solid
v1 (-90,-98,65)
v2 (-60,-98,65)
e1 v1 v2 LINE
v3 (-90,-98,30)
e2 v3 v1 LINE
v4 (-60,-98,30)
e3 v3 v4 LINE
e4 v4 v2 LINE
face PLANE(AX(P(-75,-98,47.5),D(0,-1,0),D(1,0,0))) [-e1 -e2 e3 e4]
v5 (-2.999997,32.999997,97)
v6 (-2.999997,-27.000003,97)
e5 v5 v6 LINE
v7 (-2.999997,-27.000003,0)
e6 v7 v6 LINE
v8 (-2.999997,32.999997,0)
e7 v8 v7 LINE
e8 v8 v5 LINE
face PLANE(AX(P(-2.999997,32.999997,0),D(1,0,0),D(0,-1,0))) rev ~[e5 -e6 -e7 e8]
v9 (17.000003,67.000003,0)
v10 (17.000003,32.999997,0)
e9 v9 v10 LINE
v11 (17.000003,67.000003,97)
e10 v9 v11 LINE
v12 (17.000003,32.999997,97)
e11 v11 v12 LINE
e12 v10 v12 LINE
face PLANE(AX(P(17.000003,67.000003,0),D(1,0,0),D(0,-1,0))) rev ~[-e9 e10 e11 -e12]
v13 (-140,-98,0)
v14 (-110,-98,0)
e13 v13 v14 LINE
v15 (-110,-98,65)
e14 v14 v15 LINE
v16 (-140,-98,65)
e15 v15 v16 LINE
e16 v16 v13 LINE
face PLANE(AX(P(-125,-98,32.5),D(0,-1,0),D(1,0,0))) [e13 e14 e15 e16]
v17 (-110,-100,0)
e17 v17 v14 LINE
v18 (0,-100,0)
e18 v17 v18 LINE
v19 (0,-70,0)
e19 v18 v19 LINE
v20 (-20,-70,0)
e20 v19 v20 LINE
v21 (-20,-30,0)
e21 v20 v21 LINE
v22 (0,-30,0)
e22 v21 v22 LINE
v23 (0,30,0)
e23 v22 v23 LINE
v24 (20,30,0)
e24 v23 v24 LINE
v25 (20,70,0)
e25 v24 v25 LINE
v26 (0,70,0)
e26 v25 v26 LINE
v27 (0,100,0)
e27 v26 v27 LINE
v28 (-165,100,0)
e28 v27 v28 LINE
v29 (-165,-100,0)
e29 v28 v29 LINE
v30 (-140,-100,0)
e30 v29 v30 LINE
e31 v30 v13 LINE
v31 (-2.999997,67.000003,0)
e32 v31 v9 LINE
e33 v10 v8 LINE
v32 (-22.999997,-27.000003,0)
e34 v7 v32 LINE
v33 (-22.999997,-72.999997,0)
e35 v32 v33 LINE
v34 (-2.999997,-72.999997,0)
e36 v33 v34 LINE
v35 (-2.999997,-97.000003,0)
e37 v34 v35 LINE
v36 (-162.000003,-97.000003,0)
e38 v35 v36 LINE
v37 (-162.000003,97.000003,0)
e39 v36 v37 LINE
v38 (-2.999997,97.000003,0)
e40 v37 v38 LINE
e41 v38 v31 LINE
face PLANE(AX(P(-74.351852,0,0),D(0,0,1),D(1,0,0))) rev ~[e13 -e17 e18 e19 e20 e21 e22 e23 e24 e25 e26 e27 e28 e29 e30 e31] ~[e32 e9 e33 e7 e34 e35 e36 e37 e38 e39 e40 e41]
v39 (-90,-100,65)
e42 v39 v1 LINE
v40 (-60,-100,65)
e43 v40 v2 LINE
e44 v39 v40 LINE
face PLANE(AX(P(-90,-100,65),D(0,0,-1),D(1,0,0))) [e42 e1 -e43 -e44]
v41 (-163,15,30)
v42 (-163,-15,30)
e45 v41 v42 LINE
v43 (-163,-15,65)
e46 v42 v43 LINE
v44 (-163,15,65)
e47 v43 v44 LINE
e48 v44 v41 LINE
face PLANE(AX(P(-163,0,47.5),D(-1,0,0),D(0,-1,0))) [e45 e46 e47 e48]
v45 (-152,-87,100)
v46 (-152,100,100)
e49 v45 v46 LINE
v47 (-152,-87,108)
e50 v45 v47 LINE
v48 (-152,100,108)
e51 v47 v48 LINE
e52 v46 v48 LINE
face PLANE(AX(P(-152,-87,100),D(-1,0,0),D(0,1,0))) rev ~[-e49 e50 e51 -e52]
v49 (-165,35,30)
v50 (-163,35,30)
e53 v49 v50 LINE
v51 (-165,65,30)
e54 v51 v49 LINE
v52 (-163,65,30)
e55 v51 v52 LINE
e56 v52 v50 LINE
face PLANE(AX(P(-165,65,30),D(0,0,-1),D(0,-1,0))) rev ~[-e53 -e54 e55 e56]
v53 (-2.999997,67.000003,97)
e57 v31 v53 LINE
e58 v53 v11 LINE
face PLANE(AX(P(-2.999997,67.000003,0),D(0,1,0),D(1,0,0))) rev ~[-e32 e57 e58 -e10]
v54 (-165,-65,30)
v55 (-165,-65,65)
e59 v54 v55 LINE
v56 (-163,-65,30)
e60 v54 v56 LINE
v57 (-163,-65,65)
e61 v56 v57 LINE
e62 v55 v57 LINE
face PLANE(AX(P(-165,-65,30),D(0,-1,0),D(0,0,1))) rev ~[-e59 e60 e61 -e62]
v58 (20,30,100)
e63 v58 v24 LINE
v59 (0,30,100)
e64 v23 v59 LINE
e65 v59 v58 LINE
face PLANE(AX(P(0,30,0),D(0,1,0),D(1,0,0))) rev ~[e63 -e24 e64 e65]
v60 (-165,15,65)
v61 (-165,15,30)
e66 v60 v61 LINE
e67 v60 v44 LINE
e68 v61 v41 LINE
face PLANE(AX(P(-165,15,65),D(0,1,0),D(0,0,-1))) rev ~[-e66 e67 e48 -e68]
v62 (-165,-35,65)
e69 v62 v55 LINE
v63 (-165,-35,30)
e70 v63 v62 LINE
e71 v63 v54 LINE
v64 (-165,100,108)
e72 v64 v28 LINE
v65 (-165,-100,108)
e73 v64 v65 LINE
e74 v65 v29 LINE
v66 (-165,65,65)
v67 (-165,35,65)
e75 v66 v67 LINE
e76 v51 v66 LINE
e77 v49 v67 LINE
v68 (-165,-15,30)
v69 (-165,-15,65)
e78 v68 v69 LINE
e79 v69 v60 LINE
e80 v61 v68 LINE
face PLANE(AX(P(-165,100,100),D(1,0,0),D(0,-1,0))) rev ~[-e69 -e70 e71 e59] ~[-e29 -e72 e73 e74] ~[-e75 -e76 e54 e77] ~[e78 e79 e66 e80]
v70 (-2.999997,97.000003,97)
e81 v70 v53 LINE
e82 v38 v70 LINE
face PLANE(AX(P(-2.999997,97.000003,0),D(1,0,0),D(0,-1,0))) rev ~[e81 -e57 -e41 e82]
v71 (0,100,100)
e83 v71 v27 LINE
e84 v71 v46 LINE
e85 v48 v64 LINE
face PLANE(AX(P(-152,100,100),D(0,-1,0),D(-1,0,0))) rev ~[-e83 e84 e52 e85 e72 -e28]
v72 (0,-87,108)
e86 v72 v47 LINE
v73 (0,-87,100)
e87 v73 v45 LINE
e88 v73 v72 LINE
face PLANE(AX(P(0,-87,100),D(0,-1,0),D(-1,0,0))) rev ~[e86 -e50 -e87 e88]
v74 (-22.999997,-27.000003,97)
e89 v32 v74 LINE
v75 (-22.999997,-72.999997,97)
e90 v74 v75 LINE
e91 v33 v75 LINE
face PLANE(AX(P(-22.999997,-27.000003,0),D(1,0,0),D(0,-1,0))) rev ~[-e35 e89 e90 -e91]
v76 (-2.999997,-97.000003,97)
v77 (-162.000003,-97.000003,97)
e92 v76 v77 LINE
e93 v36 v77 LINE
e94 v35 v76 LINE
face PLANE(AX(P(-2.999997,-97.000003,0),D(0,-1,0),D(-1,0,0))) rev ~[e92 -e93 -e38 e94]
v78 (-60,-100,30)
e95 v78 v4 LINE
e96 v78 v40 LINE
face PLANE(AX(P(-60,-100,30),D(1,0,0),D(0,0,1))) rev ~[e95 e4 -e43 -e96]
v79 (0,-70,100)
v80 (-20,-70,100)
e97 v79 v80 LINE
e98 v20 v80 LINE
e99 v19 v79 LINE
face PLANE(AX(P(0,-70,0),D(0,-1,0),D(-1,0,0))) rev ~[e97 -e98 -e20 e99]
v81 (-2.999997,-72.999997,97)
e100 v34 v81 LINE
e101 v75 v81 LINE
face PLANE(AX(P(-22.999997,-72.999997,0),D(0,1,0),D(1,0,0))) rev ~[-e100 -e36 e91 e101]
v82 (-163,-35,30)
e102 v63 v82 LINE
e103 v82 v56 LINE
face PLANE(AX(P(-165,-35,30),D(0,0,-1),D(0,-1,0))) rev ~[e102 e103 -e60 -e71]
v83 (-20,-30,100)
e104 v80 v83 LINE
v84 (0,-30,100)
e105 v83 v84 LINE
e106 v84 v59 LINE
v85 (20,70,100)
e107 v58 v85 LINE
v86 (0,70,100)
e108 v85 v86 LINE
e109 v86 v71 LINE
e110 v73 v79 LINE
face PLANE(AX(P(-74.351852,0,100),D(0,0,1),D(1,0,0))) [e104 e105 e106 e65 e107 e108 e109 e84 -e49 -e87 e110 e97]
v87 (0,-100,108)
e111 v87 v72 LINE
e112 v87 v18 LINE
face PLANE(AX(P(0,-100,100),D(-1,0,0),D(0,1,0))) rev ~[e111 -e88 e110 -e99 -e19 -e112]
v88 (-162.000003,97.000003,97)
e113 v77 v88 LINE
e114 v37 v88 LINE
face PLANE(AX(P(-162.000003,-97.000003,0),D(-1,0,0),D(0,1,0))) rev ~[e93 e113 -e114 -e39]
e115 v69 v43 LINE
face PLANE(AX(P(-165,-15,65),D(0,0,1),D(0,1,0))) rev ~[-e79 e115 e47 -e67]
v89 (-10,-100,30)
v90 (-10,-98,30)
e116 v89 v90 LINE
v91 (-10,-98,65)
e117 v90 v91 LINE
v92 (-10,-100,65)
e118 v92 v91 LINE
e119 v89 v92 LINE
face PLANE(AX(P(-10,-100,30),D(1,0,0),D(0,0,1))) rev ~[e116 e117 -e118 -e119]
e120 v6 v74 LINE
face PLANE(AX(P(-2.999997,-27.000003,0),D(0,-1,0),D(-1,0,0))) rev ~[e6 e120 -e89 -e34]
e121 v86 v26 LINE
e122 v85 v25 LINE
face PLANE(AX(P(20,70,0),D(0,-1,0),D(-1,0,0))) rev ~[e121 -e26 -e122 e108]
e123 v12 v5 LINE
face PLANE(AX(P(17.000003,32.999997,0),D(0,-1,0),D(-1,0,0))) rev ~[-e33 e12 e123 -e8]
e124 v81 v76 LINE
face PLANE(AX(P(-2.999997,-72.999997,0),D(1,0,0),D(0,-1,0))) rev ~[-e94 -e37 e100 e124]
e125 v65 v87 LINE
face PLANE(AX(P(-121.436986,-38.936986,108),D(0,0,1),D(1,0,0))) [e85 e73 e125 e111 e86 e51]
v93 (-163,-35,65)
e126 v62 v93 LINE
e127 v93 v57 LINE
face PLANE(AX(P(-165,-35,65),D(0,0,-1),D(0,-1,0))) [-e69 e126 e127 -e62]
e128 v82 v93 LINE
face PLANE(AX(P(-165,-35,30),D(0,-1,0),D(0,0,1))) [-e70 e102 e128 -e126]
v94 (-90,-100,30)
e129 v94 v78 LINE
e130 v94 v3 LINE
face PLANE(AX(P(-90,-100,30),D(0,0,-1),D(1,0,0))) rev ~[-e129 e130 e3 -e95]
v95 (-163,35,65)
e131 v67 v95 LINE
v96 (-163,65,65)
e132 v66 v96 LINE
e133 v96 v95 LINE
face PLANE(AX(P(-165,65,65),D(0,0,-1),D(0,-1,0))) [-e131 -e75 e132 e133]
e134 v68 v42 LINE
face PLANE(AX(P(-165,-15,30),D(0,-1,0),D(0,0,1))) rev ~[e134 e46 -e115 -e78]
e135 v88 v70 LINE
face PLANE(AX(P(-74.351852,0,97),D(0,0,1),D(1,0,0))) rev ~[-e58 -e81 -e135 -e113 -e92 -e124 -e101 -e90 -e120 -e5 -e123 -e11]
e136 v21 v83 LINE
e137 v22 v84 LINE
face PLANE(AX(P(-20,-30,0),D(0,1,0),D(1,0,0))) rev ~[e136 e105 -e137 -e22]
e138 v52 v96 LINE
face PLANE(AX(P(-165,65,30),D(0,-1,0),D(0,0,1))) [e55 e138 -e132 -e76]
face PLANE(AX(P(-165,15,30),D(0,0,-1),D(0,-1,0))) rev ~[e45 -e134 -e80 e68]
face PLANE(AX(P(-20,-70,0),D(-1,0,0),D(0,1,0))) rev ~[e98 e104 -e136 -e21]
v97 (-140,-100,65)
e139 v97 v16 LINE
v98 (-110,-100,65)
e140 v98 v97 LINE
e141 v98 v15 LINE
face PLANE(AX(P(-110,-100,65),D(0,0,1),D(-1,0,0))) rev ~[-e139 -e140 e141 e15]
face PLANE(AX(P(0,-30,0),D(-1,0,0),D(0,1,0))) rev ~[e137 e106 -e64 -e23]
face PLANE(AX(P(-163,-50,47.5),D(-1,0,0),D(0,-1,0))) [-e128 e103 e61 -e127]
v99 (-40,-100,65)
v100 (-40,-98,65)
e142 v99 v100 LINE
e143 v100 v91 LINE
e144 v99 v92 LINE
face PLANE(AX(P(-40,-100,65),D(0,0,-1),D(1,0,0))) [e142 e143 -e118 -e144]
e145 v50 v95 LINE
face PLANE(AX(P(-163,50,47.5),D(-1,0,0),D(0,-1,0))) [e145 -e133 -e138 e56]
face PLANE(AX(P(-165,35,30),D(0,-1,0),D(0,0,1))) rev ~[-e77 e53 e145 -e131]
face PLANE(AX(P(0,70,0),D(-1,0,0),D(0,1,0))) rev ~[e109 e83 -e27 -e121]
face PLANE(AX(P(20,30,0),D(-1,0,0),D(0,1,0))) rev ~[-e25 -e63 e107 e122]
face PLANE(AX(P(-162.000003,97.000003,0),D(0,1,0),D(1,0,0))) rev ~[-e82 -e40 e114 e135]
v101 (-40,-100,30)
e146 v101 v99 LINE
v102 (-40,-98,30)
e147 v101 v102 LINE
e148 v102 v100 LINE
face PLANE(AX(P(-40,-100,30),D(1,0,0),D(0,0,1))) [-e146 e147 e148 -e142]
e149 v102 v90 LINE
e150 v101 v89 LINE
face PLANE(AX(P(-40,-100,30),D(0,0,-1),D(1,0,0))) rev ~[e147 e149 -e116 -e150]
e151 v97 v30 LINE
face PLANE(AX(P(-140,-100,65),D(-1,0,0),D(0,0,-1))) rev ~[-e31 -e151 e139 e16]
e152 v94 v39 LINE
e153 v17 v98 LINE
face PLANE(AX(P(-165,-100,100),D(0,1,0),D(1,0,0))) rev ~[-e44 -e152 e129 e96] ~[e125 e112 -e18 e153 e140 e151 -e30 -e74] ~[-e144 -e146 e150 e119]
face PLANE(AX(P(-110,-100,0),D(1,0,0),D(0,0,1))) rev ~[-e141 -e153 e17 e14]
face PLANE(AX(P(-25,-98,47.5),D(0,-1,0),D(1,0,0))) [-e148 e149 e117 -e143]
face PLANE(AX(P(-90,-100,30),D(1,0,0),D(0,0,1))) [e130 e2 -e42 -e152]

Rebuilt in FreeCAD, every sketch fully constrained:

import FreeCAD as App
import Part
import Sketcher

V = App.Vector
Q = App.Units.Quantity


def add_polygon(sketch, points):
    """Adds a closed chain of lines whose ends are joined by coincident constraints."""
    first, n = sketch.GeometryCount, len(points)
    for a, b in zip(points, points[1:] + points[:1]):
        sketch.addGeometry(Part.LineSegment(App.Vector(*a, 0), App.Vector(*b, 0)), False)
    for i in range(n):
        sketch.addConstraint(Sketcher.Constraint("Coincident", first + i, 2, first + (i + 1) % n, 1))

doc = App.newDocument("Part")
body = doc.addObject("PartDesign::Body", "Body")

sketch1 = body.newObject("Sketcher::SketchObject", "Sketch")
sketch1.AttachmentSupport = (doc.getObject("XY_Plane"), [""])
sketch1.MapMode = "FlatFace"
add_polygon(sketch1, [(-165, -100), (0, -100), (0, -70), (-20, -70), (-20, -30), (0, -30), (0, 30), (20, 30), (20, 70), (0, 70), (0, 100), (-165, 100)])
add_polygon(sketch1, [(-3, -73), (-3, -97), (-162, -97), (-162, 97), (-3, 97), (-3, 67), (17, 67), (17, 33), (-3, 33), (-3, -27), (-23, -27), (-23, -73)])
sketch1.addConstraint([
    Sketcher.Constraint("Horizontal", 0),
    Sketcher.Constraint("Vertical", 1),
    Sketcher.Constraint("Horizontal", 2),
    Sketcher.Constraint("Vertical", 3),
    Sketcher.Constraint("Horizontal", 4),
    Sketcher.Constraint("Vertical", 5),
    Sketcher.Constraint("Horizontal", 6),
    Sketcher.Constraint("Vertical", 7),
    Sketcher.Constraint("Horizontal", 8),
    Sketcher.Constraint("Vertical", 9),
    Sketcher.Constraint("Horizontal", 10),
    Sketcher.Constraint("Vertical", 11),
    Sketcher.Constraint("Vertical", 12),
    Sketcher.Constraint("Horizontal", 13),
    Sketcher.Constraint("Vertical", 14),
    Sketcher.Constraint("Horizontal", 15),
    Sketcher.Constraint("Vertical", 16),
    Sketcher.Constraint("Horizontal", 17),
    Sketcher.Constraint("Vertical", 18),
    Sketcher.Constraint("Horizontal", 19),
    Sketcher.Constraint("Vertical", 20),
    Sketcher.Constraint("Horizontal", 21),
    Sketcher.Constraint("Vertical", 22),
    Sketcher.Constraint("Horizontal", 23),
    Sketcher.Constraint("Symmetric", 4, 2, 5, 2, -1, 1),
    Sketcher.Constraint("Symmetric", 2, 2, 7, 2, -1, 1),
    Sketcher.Constraint("Symmetric", 0, 2, 9, 2, -1, 1),
    Sketcher.Constraint("Symmetric", 12, 2, 15, 2, -1),
    Sketcher.Constraint("PointOnObject", 0, 2, -2),
    Sketcher.Constraint("Vertical", 16, 2, 19, 2),
    Sketcher.Constraint("Equal", 8, 17),
    Sketcher.Constraint("Equal", 19, 21),
    Sketcher.Constraint("Equal", 9, 16),
    Sketcher.Constraint("Equal", 5, 20),
    Sketcher.Constraint("DistanceX", 0, 1, 0, 2, Q("165 mm")),
    Sketcher.Constraint("DistanceX", 2, 2, 2, 1, Q("20 mm")),
    Sketcher.Constraint("DistanceY", 1, 1, 1, 2, Q("30 mm")),
    Sketcher.Constraint("DistanceY", 3, 1, 3, 2, Q("40 mm")),
    Sketcher.Constraint("DistanceY", 5, 1, 5, 2, Q("60 mm")),
    Sketcher.Constraint("DistanceX", 13, 2, 13, 1, Q("159.000006 mm")),
    Sketcher.Constraint("DistanceY", 12, 2, 12, 1, Q("24.000006 mm")),
    Sketcher.Constraint("DistanceY", 14, 1, 14, 2, Q("194.000006 mm")),
    Sketcher.Constraint("DistanceY", 18, 2, 18, 1, Q("34.000006 mm")),
    Sketcher.Constraint("DistanceX", 12, 2, -1, 1, Q("2.999997 mm")),
])
pad1 = body.newObject("PartDesign::Pad", "Pad")
pad1.Profile = sketch1
pad1.Length = 100

sketch2 = body.newObject("Sketcher::SketchObject", "Sketch001")
sketch2.AttachmentSupport = (doc.getObject("XY_Plane"), [""])
sketch2.MapMode = "FlatFace"
sketch2.AttachmentOffset = App.Placement(V(0, 0, 100), App.Rotation())
add_polygon(sketch2, [(-165, 100), (-165, -100), (0, -100), (0, -70), (-20, -70), (-20, -30), (0, -30), (0, 30), (20, 30), (20, 70), (0, 70), (0, 100)])
sketch2.addConstraint([
    Sketcher.Constraint("Vertical", 0),
    Sketcher.Constraint("Horizontal", 1),
    Sketcher.Constraint("Vertical", 2),
    Sketcher.Constraint("Horizontal", 3),
    Sketcher.Constraint("Vertical", 4),
    Sketcher.Constraint("Horizontal", 5),
    Sketcher.Constraint("Vertical", 6),
    Sketcher.Constraint("Horizontal", 7),
    Sketcher.Constraint("Vertical", 8),
    Sketcher.Constraint("Horizontal", 9),
    Sketcher.Constraint("Vertical", 10),
    Sketcher.Constraint("Horizontal", 11),
    Sketcher.Constraint("Symmetric", 5, 2, 6, 2, -1, 1),
    Sketcher.Constraint("Symmetric", 3, 2, 8, 2, -1, 1),
    Sketcher.Constraint("Symmetric", 1, 2, 10, 2, -1, 1),
    Sketcher.Constraint("PointOnObject", 1, 2, -2),
    Sketcher.Constraint("DistanceX", 1, 1, 1, 2, Q("165 mm")),
    Sketcher.Constraint("DistanceX", 3, 2, 3, 1, Q("20 mm")),
    Sketcher.Constraint("DistanceY", 0, 2, 0, 1, Q("200 mm")),
    Sketcher.Constraint("DistanceY", 2, 1, 2, 2, Q("30 mm")),
    Sketcher.Constraint("DistanceY", 4, 1, 4, 2, Q("40 mm")),
])
pad2 = body.newObject("PartDesign::Pad", "Pad001")
pad2.Profile = sketch2
pad2.Length = 3
pad2.Reversed = True

sketch3 = body.newObject("Sketcher::SketchObject", "Sketch002")
sketch3.AttachmentSupport = (doc.getObject("XY_Plane"), [""])
sketch3.MapMode = "FlatFace"
sketch3.AttachmentOffset = App.Placement(V(0, 0, 100), App.Rotation())
add_polygon(sketch3, [(0, -100), (0, -87), (-152, -87), (-152, 100), (-165, 100), (-165, -100)])
sketch3.addConstraint([
    Sketcher.Constraint("Vertical", 0),
    Sketcher.Constraint("Horizontal", 1),
    Sketcher.Constraint("Vertical", 2),
    Sketcher.Constraint("Horizontal", 3),
    Sketcher.Constraint("Vertical", 4),
    Sketcher.Constraint("Horizontal", 5),
    Sketcher.Constraint("PointOnObject", 0, 2, -2),
    Sketcher.Constraint("Equal", 3, 0),
    Sketcher.Constraint("DistanceX", 1, 2, 1, 1, Q("152 mm")),
    Sketcher.Constraint("DistanceX", 3, 2, 3, 1, Q("13 mm")),
    Sketcher.Constraint("DistanceY", 2, 1, 2, 2, Q("187 mm")),
    Sketcher.Constraint("DistanceY", 0, 2, -1, 1, Q("87 mm")),
])
pad3 = body.newObject("PartDesign::Pad", "Pad002")
pad3.Profile = sketch3
pad3.Length = 8

sketch4 = body.newObject("Sketcher::SketchObject", "Sketch003")
sketch4.AttachmentSupport = (doc.getObject("XZ_Plane"), [""])
sketch4.MapMode = "FlatFace"
sketch4.AttachmentOffset = App.Placement(V(0, 0, 100), App.Rotation())
add_polygon(sketch4, [(-40, 65), (-40, 30), (-10, 30), (-10, 65)])
add_polygon(sketch4, [(-90, 65), (-90, 30), (-60, 30), (-60, 65)])
add_polygon(sketch4, [(-110, 65), (-140, 65), (-140, 0), (-110, 0)])
sketch4.addConstraint([
    Sketcher.Constraint("Vertical", 0),
    Sketcher.Constraint("Horizontal", 1),
    Sketcher.Constraint("Vertical", 2),
    Sketcher.Constraint("Horizontal", 3),
    Sketcher.Constraint("Vertical", 4),
    Sketcher.Constraint("Horizontal", 5),
    Sketcher.Constraint("Vertical", 6),
    Sketcher.Constraint("Horizontal", 7),
    Sketcher.Constraint("Horizontal", 8),
    Sketcher.Constraint("Vertical", 9),
    Sketcher.Constraint("Horizontal", 10),
    Sketcher.Constraint("Vertical", 11),
    Sketcher.Constraint("PointOnObject", 9, 2, -1),
    Sketcher.Constraint("Horizontal", 1, 2, 4, 2),
    Sketcher.Constraint("Horizontal", 3, 2, 6, 2),
    Sketcher.Constraint("Horizontal", 7, 2, 8, 2),
    Sketcher.Constraint("Equal", 3, 5),
    Sketcher.Constraint("Equal", 7, 8),
    Sketcher.Constraint("DistanceX", 1, 1, 1, 2, Q("30 mm")),
    Sketcher.Constraint("DistanceY", 0, 2, 0, 1, Q("35 mm")),
    Sketcher.Constraint("DistanceY", 9, 2, 9, 1, Q("65 mm")),
    Sketcher.Constraint("DistanceX", 0, 2, -1, 1, Q("40 mm")),
    Sketcher.Constraint("DistanceX", 4, 2, -1, 1, Q("90 mm")),
    Sketcher.Constraint("DistanceX", 8, 2, -1, 1, Q("140 mm")),
])
pocket1 = body.newObject("PartDesign::Pocket", "Pocket")
pocket1.Profile = sketch4
pocket1.Length = 2

sketch5 = body.newObject("Sketcher::SketchObject", "Sketch004")
sketch5.AttachmentSupport = (doc.getObject("YZ_Plane"), [""])
sketch5.MapMode = "FlatFace"
sketch5.AttachmentOffset = App.Placement(V(0, 0, -165), App.Rotation())
add_polygon(sketch5, [(15, 65), (15, 30), (-15, 30), (-15, 65)])
add_polygon(sketch5, [(-35, 65), (-35, 30), (-65, 30), (-65, 65)])
add_polygon(sketch5, [(65, 65), (65, 30), (35, 30), (35, 65)])
sketch5.addConstraint([
    Sketcher.Constraint("Vertical", 0),
    Sketcher.Constraint("Horizontal", 1),
    Sketcher.Constraint("Vertical", 2),
    Sketcher.Constraint("Horizontal", 3),
    Sketcher.Constraint("Vertical", 4),
    Sketcher.Constraint("Horizontal", 5),
    Sketcher.Constraint("Vertical", 6),
    Sketcher.Constraint("Horizontal", 7),
    Sketcher.Constraint("Vertical", 8),
    Sketcher.Constraint("Horizontal", 9),
    Sketcher.Constraint("Vertical", 10),
    Sketcher.Constraint("Horizontal", 11),
    Sketcher.Constraint("Symmetric", 5, 2, 8, 2, -2),
    Sketcher.Constraint("Symmetric", 7, 2, 10, 2, -2),
    Sketcher.Constraint("Horizontal", 1, 2, 4, 2),
    Sketcher.Constraint("Horizontal", 3, 2, 6, 2),
    Sketcher.Constraint("Equal", 3, 5),
    Sketcher.Constraint("DistanceX", 1, 2, 1, 1, Q("30 mm")),
    Sketcher.Constraint("DistanceY", 0, 2, 0, 1, Q("35 mm")),
    Sketcher.Constraint("DistanceX", -1, 1, 0, 2, Q("15 mm")),
    Sketcher.Constraint("DistanceY", -1, 1, 0, 2, Q("30 mm")),
    Sketcher.Constraint("DistanceX", 4, 2, -1, 1, Q("35 mm")),
])
pocket2 = body.newObject("PartDesign::Pocket", "Pocket001")
pocket2.Profile = sketch5
pocket2.Length = 2
pocket2.Reversed = True

doc.recompute()
